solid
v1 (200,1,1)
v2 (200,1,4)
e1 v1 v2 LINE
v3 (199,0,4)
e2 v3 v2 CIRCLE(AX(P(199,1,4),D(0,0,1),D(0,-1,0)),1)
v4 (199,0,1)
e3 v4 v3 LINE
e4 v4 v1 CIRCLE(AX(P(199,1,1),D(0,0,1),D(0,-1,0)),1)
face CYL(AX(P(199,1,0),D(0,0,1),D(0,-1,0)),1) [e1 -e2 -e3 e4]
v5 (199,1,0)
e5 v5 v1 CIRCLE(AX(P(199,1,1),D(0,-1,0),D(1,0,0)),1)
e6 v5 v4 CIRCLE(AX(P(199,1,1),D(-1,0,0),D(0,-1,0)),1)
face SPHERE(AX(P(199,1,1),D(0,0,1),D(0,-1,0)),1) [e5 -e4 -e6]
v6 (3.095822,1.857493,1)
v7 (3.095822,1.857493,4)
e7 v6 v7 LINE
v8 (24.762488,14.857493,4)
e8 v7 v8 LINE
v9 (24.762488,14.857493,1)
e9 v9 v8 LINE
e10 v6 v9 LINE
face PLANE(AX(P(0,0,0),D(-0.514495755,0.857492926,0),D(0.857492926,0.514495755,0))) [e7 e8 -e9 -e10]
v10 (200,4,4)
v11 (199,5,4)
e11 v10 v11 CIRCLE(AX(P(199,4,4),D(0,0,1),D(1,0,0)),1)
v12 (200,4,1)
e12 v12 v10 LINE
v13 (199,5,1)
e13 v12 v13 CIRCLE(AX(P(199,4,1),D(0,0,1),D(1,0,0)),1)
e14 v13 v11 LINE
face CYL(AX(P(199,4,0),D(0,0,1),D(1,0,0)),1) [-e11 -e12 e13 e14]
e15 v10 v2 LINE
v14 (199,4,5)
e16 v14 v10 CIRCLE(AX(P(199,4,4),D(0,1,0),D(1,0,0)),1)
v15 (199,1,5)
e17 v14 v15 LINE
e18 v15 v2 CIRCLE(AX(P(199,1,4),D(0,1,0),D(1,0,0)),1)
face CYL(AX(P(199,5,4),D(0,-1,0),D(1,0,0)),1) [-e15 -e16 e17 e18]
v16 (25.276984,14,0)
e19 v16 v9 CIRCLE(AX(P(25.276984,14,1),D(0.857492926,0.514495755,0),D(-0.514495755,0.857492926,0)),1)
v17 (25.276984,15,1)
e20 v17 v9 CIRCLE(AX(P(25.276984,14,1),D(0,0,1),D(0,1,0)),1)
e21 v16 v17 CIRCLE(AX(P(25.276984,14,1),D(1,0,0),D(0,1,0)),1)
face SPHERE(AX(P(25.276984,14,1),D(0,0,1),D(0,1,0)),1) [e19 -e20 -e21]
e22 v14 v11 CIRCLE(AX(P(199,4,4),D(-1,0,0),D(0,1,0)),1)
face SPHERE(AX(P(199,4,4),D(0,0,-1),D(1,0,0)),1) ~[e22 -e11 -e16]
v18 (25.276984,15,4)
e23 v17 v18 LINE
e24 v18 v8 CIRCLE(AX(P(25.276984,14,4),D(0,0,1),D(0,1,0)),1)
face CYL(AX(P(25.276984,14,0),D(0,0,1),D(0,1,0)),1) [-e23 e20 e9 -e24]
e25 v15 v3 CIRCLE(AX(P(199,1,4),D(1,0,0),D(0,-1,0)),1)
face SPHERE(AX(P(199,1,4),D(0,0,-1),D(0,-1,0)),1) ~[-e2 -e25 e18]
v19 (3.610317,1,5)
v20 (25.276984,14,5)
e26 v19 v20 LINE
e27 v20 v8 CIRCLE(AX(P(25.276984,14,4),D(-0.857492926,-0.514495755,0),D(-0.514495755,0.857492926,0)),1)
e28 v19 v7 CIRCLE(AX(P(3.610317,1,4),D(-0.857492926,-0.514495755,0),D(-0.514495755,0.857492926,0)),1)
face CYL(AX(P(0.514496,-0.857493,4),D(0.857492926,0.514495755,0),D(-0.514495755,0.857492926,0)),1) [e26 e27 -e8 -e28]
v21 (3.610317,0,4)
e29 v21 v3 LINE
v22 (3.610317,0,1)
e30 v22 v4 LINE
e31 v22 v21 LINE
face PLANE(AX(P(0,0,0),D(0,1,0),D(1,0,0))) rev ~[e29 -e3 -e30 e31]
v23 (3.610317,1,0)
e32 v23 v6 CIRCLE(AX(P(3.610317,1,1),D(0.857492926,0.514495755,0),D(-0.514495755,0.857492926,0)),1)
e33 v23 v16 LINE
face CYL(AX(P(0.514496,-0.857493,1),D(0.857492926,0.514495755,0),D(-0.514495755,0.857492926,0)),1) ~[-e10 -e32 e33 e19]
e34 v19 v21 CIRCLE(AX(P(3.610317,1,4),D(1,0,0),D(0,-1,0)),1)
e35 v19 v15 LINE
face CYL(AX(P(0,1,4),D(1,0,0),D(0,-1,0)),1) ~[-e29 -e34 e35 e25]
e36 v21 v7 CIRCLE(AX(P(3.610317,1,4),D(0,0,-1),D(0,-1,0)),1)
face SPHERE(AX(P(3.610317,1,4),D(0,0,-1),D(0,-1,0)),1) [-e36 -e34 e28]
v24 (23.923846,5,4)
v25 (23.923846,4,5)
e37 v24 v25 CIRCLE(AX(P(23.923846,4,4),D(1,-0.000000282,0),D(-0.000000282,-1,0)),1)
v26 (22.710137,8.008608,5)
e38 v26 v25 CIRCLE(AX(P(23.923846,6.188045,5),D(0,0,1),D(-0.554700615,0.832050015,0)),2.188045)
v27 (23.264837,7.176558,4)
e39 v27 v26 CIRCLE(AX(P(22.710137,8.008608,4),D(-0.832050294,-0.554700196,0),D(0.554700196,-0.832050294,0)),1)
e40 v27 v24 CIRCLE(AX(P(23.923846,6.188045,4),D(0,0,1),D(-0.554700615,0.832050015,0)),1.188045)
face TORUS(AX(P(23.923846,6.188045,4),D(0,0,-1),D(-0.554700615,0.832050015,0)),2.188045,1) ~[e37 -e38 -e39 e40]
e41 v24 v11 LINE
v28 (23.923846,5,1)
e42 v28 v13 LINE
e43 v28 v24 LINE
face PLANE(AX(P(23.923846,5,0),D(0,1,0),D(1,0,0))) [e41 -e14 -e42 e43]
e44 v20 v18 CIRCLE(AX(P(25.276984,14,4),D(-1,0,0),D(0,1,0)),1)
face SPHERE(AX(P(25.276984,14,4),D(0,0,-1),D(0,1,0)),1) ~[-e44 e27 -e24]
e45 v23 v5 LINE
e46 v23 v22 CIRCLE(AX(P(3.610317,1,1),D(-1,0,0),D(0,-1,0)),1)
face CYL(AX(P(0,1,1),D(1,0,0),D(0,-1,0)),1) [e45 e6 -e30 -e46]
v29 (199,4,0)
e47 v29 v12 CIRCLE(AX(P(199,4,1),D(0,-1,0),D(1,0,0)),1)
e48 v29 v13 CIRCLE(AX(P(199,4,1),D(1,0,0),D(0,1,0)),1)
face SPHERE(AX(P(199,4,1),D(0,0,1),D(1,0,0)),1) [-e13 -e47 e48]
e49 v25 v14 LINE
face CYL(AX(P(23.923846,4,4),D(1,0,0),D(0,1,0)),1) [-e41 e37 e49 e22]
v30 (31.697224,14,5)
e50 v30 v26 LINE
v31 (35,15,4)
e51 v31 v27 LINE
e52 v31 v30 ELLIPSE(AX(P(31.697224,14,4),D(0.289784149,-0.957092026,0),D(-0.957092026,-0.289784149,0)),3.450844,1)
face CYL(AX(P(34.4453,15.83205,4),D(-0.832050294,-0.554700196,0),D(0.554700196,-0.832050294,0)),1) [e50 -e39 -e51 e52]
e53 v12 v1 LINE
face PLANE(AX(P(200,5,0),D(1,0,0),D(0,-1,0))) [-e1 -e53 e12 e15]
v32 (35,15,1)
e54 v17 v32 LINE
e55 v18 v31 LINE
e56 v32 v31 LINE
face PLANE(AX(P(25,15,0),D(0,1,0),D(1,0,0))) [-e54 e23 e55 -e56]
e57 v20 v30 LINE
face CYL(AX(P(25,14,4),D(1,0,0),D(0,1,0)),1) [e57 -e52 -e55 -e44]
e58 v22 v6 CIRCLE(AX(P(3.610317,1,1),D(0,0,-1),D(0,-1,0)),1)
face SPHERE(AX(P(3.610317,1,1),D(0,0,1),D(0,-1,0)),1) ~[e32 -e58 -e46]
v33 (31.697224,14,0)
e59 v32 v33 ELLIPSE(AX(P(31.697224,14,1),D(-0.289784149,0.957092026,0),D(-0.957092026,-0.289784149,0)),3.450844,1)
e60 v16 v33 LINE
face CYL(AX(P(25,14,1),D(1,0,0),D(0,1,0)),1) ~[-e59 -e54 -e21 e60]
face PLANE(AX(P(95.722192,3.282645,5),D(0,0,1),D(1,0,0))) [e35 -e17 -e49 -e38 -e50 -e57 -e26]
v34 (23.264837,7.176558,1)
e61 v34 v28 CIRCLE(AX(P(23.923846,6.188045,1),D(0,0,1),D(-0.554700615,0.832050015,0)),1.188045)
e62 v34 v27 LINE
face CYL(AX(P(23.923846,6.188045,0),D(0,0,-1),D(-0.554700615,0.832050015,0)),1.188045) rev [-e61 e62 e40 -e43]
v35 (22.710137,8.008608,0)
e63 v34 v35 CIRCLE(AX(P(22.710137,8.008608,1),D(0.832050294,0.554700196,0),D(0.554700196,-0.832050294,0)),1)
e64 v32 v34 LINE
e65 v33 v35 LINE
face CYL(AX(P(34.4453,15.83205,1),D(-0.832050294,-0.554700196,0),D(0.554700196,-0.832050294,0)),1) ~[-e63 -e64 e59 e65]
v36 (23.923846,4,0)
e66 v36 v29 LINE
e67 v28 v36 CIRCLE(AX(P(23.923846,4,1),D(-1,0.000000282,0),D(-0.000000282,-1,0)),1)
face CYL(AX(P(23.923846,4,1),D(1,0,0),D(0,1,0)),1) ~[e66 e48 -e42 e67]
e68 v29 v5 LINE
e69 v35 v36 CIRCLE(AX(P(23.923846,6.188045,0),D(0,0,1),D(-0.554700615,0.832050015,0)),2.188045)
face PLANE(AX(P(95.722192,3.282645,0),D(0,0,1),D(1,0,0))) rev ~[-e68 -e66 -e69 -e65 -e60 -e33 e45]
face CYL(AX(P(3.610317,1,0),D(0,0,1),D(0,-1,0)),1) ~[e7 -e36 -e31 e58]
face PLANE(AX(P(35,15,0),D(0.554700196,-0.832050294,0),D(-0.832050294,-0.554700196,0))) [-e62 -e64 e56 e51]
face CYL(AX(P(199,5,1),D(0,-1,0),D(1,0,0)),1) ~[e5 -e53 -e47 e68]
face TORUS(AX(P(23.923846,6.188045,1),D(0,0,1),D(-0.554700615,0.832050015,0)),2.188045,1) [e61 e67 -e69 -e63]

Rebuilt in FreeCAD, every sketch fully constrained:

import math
import FreeCAD as App
import Part
import Sketcher
Q = App.Units.Quantity


def edges_at(feature, points):
    """Names of the edges that pass closest to the given points."""
    edges = feature.Shape.Edges
    near = lambda p: min(range(len(edges)), key=lambda i: edges[i].distToShape(Part.Vertex(*p))[0])
    return sorted({f"Edge{near(p) + 1}" for p in points})

doc = App.newDocument("Part")
body = doc.addObject("PartDesign::Body", "Body")

sketch1 = body.newObject("Sketcher::SketchObject", "Sketch")
sketch1.AttachmentSupport = (doc.getObject("XY_Plane"), [""])
sketch1.MapMode = "FlatFace"
sketch1.addGeometry([
    Part.LineSegment(App.Vector(0, 0, 0), App.Vector(200, 0, 0)),
    Part.LineSegment(App.Vector(200, 0, 0), App.Vector(200, 5, 0)),
    Part.LineSegment(App.Vector(200, 5, 0), App.Vector(23.923846, 5, 0)),
    Part.ArcOfCircle(Part.Circle(App.Vector(23.923846, 6.188045, 0), App.Vector(0, 0, 1), 1.188045), math.radians(123.690096), math.radians(269.999984)),
    Part.LineSegment(App.Vector(23.264837, 7.176558, 0), App.Vector(35, 15, 0)),
    Part.LineSegment(App.Vector(35, 15, 0), App.Vector(25, 15, 0)),
    Part.LineSegment(App.Vector(25, 15, 0), App.Vector(0, 0, 0)),
], False)
sketch1.addConstraint([
    Sketcher.Constraint("Coincident", 0, 2, 1, 1),
    Sketcher.Constraint("Coincident", 1, 2, 2, 1),
    Sketcher.Constraint("Tangent", 2, 2, 3, 2),
    Sketcher.Constraint("Tangent", 3, 1, 4, 1),
    Sketcher.Constraint("Coincident", 4, 2, 5, 1),
    Sketcher.Constraint("Coincident", 5, 2, 6, 1),
    Sketcher.Constraint("Coincident", 6, 2, 0, 1),
    Sketcher.Constraint("Horizontal", 0),
    Sketcher.Constraint("Vertical", 1),
    Sketcher.Constraint("Horizontal", 2),
    Sketcher.Constraint("Horizontal", 5),
    Sketcher.Constraint("Coincident", 6, 2, -1, 1),
    Sketcher.Constraint("DistanceX", 0, 1, 0, 2, Q("200 mm")),
    Sketcher.Constraint("DistanceX", 5, 2, 5, 1, Q("10 mm")),
    Sketcher.Constraint("DistanceY", 1, 1, 1, 2, Q("5 mm")),
    Sketcher.Constraint("DistanceX", -1, 1, 4, 2, Q("35 mm")),
    Sketcher.Constraint("DistanceY", -1, 1, 4, 2, Q("15 mm")),
    Sketcher.Constraint("Radius", 3, Q("1.188045 mm")),
    Sketcher.Constraint("Distance", 4, Q("14.103911 mm")),
])
pad1 = body.newObject("PartDesign::Pad", "Pad")
pad1.Profile = sketch1
pad1.Length = 5
doc.recompute()

fillet = body.newObject("PartDesign::Fillet", "Fillet")
fillet.Base = (pad1, edges_at(pad1, [
    (0, 0, 2.5),
    (200, 0, 2.5),
    (100, 0, 0),
    (100, 0, 5),
    (200, 5, 2.5),
    (200, 2.5, 0),
    (200, 2.5, 5),
    (111.962, 5, 0),
    (111.962, 5, 5),
    (22.787, 5.844, 0),
    (22.787, 5.844, 5),
    (29.132, 11.088, 0),
    (29.132, 11.088, 5),
    (25, 15, 2.5),
    (30, 15, 0),
    (30, 15, 5),
    (12.5, 7.5, 0),
    (12.5, 7.5, 5),
]))
fillet.Radius = 1

doc.recompute()
